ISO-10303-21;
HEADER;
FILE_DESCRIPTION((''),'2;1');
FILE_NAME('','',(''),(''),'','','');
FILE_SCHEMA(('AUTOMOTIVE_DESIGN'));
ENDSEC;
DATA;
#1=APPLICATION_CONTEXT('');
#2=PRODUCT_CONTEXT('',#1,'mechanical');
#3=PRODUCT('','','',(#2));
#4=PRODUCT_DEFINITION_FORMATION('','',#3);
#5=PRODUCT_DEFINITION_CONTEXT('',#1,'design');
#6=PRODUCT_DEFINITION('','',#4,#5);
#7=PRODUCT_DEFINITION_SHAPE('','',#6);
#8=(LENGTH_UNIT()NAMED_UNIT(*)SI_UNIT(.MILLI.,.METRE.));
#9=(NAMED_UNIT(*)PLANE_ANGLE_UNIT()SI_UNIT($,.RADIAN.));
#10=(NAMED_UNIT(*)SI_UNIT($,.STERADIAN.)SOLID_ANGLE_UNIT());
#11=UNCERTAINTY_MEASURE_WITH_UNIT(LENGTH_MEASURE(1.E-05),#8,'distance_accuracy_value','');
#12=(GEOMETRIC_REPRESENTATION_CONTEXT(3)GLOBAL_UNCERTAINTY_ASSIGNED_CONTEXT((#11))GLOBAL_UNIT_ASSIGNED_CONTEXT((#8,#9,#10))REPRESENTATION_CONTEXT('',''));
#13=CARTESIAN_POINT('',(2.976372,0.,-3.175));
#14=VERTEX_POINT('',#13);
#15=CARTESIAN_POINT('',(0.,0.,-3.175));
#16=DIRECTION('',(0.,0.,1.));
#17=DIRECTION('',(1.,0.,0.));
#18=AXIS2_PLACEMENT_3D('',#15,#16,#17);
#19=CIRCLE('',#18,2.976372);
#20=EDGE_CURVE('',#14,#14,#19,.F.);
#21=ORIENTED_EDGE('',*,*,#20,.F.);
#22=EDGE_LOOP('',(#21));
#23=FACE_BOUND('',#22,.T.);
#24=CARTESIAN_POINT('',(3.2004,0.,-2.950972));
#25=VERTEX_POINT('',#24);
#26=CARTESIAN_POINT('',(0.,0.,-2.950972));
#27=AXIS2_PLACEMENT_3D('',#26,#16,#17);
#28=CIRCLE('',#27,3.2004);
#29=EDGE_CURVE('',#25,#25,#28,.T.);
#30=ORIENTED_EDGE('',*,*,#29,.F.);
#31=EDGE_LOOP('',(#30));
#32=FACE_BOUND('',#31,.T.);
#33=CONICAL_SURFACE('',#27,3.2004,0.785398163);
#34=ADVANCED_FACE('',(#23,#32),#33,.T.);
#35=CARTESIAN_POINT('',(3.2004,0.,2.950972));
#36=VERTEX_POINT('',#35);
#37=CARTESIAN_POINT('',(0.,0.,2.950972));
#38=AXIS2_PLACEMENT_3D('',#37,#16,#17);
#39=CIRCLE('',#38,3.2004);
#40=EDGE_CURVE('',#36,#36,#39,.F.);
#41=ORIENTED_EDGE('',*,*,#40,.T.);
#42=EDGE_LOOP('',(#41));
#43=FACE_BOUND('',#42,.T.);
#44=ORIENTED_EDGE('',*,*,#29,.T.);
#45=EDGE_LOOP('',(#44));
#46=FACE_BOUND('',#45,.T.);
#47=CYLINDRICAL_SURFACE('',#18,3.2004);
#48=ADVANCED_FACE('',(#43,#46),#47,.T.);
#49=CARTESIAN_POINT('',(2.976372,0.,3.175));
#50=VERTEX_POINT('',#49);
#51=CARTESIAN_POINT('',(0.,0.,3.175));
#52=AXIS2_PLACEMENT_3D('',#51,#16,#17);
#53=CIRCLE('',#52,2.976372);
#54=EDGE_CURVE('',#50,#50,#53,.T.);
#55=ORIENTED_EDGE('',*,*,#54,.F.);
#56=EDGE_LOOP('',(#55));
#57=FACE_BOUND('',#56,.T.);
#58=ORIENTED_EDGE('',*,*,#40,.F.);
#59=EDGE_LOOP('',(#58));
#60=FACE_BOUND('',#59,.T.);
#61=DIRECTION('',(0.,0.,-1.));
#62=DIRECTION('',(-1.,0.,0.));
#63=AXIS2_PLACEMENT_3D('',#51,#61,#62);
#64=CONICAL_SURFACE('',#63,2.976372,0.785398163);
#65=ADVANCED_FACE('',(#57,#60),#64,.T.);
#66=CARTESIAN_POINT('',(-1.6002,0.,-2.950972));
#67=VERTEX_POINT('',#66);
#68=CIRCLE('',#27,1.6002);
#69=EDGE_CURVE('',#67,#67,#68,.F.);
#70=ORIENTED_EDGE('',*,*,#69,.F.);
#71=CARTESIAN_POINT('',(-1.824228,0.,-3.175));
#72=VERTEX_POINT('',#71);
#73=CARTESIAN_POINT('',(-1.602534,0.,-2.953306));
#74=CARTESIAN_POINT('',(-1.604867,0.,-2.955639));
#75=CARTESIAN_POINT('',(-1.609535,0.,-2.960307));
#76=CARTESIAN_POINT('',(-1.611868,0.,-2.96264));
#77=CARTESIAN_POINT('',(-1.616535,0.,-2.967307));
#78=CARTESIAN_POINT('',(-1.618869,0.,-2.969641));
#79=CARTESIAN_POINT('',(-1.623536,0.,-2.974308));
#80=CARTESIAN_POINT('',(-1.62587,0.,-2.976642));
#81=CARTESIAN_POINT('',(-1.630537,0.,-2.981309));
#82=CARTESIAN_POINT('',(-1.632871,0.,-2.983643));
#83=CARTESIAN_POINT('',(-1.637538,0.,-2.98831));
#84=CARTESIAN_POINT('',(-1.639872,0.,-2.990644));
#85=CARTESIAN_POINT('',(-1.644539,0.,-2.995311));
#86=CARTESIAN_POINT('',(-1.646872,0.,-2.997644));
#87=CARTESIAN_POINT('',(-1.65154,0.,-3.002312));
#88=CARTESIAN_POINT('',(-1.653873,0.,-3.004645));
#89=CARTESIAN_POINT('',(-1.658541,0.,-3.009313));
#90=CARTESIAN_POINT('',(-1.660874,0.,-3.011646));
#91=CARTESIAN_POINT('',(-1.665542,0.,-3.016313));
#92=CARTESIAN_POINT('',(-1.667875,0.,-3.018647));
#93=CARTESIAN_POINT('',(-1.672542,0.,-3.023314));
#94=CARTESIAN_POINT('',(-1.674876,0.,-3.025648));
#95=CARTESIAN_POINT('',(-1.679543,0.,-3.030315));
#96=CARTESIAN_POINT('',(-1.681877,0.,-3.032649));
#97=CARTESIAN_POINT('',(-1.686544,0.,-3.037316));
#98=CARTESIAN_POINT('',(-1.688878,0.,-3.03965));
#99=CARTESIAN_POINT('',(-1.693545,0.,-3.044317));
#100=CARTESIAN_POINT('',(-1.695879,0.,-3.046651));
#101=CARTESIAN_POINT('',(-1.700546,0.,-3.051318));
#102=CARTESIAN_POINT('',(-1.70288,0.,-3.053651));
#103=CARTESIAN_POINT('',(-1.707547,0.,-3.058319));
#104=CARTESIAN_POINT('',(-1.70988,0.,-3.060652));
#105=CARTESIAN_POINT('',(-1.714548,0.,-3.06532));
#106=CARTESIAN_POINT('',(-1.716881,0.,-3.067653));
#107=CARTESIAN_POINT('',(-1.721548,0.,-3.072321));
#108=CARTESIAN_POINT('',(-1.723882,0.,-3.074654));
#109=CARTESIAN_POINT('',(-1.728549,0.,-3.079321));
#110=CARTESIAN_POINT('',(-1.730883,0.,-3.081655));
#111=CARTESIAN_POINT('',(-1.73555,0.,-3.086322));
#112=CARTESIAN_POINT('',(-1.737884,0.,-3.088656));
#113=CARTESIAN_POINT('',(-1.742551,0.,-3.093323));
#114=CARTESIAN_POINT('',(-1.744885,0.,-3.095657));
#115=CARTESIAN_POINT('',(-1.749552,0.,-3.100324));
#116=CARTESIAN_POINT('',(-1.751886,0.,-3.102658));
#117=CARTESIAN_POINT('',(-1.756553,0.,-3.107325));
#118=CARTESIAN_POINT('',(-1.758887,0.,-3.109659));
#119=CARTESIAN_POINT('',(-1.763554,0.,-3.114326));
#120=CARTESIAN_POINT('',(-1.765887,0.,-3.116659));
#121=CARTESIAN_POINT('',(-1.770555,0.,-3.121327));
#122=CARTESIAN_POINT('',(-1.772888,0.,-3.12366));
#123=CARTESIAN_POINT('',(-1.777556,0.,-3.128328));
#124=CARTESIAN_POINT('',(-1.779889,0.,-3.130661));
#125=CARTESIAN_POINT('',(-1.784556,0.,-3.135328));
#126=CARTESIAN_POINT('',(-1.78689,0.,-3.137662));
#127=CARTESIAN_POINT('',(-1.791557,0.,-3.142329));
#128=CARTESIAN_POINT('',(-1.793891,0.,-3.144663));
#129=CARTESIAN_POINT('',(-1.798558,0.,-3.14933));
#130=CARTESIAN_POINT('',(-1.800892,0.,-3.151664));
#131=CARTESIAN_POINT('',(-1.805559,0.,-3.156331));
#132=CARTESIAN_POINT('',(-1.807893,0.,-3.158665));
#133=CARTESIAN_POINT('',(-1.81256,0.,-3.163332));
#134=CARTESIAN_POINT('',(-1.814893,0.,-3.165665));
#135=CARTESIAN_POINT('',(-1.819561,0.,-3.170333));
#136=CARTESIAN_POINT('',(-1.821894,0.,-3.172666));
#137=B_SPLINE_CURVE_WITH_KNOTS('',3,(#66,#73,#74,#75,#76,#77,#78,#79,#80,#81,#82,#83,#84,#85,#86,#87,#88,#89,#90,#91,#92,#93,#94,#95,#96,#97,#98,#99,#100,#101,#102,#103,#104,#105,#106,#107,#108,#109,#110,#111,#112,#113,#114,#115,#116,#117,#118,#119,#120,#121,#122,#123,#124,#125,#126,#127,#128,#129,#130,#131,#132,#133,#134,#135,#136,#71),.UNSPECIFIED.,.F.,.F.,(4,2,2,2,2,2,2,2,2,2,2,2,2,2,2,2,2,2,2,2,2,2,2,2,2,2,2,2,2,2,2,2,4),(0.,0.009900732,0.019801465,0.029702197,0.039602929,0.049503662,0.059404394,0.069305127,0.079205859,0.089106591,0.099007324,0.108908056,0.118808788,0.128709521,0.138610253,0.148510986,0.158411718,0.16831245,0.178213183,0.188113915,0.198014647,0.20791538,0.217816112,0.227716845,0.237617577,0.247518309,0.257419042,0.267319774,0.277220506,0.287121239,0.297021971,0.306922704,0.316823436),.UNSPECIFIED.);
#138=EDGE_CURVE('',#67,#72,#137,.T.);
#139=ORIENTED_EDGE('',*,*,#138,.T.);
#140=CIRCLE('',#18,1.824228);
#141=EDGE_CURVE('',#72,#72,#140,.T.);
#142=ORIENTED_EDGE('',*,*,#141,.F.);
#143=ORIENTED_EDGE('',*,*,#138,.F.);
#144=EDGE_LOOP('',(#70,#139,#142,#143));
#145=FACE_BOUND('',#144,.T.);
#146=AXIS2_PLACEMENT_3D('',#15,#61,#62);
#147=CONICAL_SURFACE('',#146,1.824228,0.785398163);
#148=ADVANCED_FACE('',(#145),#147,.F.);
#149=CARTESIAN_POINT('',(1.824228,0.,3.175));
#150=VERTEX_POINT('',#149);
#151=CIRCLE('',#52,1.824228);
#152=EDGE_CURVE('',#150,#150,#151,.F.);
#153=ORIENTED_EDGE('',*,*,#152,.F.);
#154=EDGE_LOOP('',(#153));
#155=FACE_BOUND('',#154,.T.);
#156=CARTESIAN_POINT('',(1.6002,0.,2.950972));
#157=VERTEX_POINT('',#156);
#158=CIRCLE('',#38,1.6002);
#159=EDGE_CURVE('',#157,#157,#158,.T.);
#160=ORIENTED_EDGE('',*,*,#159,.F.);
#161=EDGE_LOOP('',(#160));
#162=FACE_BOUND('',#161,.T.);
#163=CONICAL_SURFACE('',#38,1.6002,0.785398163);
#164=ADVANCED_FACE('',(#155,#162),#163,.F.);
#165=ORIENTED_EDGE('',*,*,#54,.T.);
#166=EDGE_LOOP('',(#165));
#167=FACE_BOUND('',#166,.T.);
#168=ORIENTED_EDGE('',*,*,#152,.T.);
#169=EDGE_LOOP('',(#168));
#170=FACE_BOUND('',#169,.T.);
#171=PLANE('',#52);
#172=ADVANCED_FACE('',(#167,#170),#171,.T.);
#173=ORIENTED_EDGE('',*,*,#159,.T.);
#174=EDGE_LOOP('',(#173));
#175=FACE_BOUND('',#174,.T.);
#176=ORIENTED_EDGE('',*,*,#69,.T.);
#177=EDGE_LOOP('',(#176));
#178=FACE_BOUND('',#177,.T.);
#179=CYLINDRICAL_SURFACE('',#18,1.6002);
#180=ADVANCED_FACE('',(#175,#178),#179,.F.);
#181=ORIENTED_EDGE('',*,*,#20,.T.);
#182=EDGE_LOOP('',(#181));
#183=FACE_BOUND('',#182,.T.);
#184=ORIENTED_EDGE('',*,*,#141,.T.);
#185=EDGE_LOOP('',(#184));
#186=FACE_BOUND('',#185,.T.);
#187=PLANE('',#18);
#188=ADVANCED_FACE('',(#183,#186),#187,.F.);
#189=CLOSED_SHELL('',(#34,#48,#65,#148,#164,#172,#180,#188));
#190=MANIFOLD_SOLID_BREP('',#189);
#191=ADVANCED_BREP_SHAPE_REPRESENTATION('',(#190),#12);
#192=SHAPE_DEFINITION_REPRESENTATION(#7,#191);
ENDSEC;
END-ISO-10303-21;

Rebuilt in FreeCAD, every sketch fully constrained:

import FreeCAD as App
import Part
import Sketcher

V = App.Vector
Q = App.Units.Quantity


def edges_at(feature, points):
    """Names of the edges that pass closest to the given points."""
    edges = feature.Shape.Edges
    near = lambda p: min(range(len(edges)), key=lambda i: edges[i].distToShape(Part.Vertex(*p))[0])
    return sorted({f"Edge{near(p) + 1}" for p in points})

doc = App.newDocument("Part")
body = doc.addObject("PartDesign::Body", "Body")

# Sketch on XY plane
sketch1 = doc.addObject("Sketcher::SketchObject", "Sketch")
body.addObject(sketch1)
sketch1.AttachmentSupport = (doc.XY_Plane, [""])
sketch1.MapMode = "FlatFace"
sketch1.addGeometry([
    Part.Circle(V(0, 0, 0), V(0, 0, 1), 3.2),
    Part.Circle(V(0, 0, 0), V(0, 0, 1), 1.6),
], False)
sketch1.addConstraint([
    Sketcher.Constraint("Coincident", 0, 3, -1, 1),
    Sketcher.Constraint("Coincident", 1, 3, -1, 1),
    Sketcher.Constraint("Diameter", 0, Q("0.252 in")),
    Sketcher.Constraint("Diameter", 1, Q("0.126 in")),
])
pad1 = doc.addObject("PartDesign::Pad", "Pad")
body.addObject(pad1)
pad1.Profile = sketch1
pad1.Type = "TwoLengths"
pad1.Length = Q("0.125 in")
pad1.Length2 = Q("0.125 in")
doc.recompute()

chamfer = doc.addObject("PartDesign::Chamfer", "Chamfer")
body.addObject(chamfer)
chamfer.Base = (pad1, edges_at(pad1, [
    (-3.2, 0, -3.175),
    (-1.6, 0, -3.175),
    (-3.2, 0, 3.175),
    (-1.6, 0, 3.175),
]))
chamfer.Size = 0.224028

doc.recompute()
